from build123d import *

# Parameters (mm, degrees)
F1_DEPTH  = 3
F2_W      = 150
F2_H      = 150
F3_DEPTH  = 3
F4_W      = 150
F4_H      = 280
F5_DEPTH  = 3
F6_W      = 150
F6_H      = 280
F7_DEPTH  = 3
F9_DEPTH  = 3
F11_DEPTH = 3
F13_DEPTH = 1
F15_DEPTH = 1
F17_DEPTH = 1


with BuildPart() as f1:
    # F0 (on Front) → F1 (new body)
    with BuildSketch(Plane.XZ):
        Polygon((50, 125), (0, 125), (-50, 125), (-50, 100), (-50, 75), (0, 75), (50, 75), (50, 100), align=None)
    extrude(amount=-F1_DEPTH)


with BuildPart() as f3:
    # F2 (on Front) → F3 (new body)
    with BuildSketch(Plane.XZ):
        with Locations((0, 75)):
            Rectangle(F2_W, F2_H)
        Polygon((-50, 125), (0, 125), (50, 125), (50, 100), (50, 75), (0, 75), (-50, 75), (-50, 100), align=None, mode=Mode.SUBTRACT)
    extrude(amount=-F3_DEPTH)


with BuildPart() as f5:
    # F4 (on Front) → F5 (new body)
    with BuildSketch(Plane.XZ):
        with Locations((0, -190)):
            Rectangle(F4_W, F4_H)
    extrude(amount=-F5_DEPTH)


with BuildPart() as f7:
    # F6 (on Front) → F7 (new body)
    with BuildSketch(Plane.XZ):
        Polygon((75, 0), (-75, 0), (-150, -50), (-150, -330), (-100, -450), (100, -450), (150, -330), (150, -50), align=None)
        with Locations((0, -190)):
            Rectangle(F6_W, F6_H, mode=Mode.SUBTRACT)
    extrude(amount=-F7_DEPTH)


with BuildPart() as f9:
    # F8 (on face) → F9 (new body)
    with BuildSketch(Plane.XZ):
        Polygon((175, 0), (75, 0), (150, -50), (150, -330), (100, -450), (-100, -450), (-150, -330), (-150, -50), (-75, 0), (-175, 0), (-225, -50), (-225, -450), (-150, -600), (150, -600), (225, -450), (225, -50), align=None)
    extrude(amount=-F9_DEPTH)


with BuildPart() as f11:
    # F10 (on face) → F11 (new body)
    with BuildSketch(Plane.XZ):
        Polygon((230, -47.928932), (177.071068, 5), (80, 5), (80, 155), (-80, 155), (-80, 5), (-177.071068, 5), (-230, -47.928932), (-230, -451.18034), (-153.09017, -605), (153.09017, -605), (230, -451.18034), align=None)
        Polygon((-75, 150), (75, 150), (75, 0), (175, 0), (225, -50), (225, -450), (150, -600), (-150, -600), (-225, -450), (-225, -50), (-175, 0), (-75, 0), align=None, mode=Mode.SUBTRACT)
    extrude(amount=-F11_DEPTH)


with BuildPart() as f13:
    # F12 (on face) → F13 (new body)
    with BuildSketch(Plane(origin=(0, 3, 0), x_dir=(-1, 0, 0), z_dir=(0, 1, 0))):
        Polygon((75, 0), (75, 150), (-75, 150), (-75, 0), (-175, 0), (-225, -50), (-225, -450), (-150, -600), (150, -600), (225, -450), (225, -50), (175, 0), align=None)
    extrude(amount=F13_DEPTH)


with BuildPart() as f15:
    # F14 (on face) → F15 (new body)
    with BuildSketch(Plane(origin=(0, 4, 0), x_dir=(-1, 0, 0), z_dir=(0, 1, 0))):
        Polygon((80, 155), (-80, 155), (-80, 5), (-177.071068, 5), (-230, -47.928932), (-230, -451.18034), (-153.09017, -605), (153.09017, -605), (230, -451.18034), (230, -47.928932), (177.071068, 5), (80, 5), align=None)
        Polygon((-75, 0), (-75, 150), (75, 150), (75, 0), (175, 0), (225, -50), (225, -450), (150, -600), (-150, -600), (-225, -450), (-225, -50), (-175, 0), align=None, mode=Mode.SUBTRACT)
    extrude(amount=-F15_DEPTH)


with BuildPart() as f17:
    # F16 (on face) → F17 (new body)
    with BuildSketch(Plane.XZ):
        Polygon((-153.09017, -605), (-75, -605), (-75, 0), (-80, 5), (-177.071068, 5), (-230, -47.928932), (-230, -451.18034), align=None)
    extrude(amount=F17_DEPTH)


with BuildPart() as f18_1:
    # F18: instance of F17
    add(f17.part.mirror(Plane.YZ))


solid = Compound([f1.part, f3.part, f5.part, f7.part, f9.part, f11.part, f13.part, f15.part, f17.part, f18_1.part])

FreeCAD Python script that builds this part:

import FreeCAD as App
import Part
import Sketcher
from FreeCAD import Vector
Q = App.Units.Quantity

doc = App.newDocument("Part")
params = doc.addObject("Spreadsheet::Sheet", "Params")
for row, (alias, value) in enumerate([
    ("sketch1_width", "100 mm"),
    ("sketch1_height", "50 mm"),
    ("pad1_length", "3 mm"),
    ("sketch2_width", "150 mm"),
    ("sketch2_width2", "100 mm"),
    ("sketch2_height", "50 mm"),
    ("pad2_length", "3 mm"),
    ("sketch3_width", "150 mm"),
    ("sketch3_height", "280 mm"),
    ("pad3_length", "3 mm"),
    ("sketch4_width", "150 mm"),
    ("sketch4_width2", "200 mm"),
    ("sketch4_height", "280 mm"),
    ("sketch4_length", "130 mm"),
    ("pad4_length", "3 mm"),
    ("sketch5_width", "100 mm"),
    ("sketch5_width2", "200 mm"),
    ("sketch5_width3", "300 mm"),
    ("sketch5_height", "280 mm"),
    ("sketch5_height2", "400 mm"),
    ("pad5_length", "3 mm"),
    ("sketch6_width", "160 mm"),
    ("sketch6_width2", "150 mm"),
    ("sketch6_width3", "100 mm"),
    ("sketch6_width4", "300 mm"),
    ("sketch6_height", "400 mm"),
    ("pad6_length", "3 mm"),
    ("sketch7_width", "150 mm"),
    ("sketch7_width2", "100 mm"),
    ("sketch7_width3", "300 mm"),
    ("sketch7_height", "400 mm"),
    ("pad7_length", "1 mm"),
    ("sketch8_width", "160 mm"),
    ("sketch8_width2", "100 mm"),
    ("sketch8_width3", "150 mm"),
    ("sketch8_width4", "300 mm"),
    ("sketch8_height", "400 mm"),
    ("pad8_length", "1 mm"),
    ("sketch9_height", "605 mm"),
    ("pad9_length", "1 mm"),
], start=1):
    params.set(f"A{row}", alias)
    params.set(f"B{row}", "=" + value)
    params.setAlias(f"B{row}", alias)

body = doc.addObject("PartDesign::Body", "Body")

# Sketch on XZ plane
sketch1 = doc.addObject("Sketcher::SketchObject", "Sketch")
body.addObject(sketch1)
sketch1.AttachmentSupport = (doc.XZ_Plane, [""])
sketch1.MapMode = "FlatFace"
sketch1.addGeometry([
    Part.LineSegment(Vector(50, 125, 0), Vector(-50, 125, 0)),
    Part.LineSegment(Vector(-50, 125, 0), Vector(-50, 75, 0)),
    Part.LineSegment(Vector(-50, 75, 0), Vector(50, 75, 0)),
    Part.LineSegment(Vector(50, 75, 0), Vector(50, 125, 0)),
], False)
sketch1.addConstraint([
    Sketcher.Constraint("Coincident", 0, 2, 1, 1),
    Sketcher.Constraint("Coincident", 1, 2, 2, 1),
    Sketcher.Constraint("Coincident", 2, 2, 3, 1),
    Sketcher.Constraint("Coincident", 3, 2, 0, 1),
    Sketcher.Constraint("Horizontal", 0),
    Sketcher.Constraint("Vertical", 1),
    Sketcher.Constraint("Horizontal", 2),
    Sketcher.Constraint("Vertical", 3),
    Sketcher.Constraint("DistanceX", 0, 2, 0, 1, 100.0),
    Sketcher.Constraint("DistanceY", 1, 2, 1, 1, 50.0),
    Sketcher.Constraint("DistanceX", 0, 2, -1, 1, 50.0),
    Sketcher.Constraint("DistanceY", -1, 1, 0, 2, 125.0),
])
sketch1.setExpression("Constraints[8]", "Params.sketch1_width")
sketch1.setExpression("Constraints[9]", "Params.sketch1_height")
pad1 = doc.addObject("PartDesign::Pad", "Pad")
body.addObject(pad1)
pad1.Profile = sketch1
pad1.setExpression("Length", "Params.pad1_length")
pad1.Reversed = True
body2 = doc.addObject("PartDesign::Body", "Body001")

# Sketch on XZ plane
sketch2 = doc.addObject("Sketcher::SketchObject", "Sketch001")
body2.addObject(sketch2)
sketch2.AttachmentSupport = (doc.getObject("XZ_Plane001"), [""])
sketch2.MapMode = "FlatFace"
sketch2.addGeometry([
    Part.LineSegment(Vector(-75, 150, 0), Vector(-75, 0, 0)),  # 0
    Part.LineSegment(Vector(-75, 0, 0), Vector(75, 0, 0)),  # 1
    Part.LineSegment(Vector(75, 0, 0), Vector(75, 150, 0)),  # 2
    Part.LineSegment(Vector(75, 150, 0), Vector(-75, 150, 0)),  # 3
    Part.LineSegment(Vector(-50, 75, 0), Vector(-50, 125, 0)),  # 4
    Part.LineSegment(Vector(-50, 125, 0), Vector(50, 125, 0)),  # 5
    Part.LineSegment(Vector(50, 125, 0), Vector(50, 75, 0)),  # 6
    Part.LineSegment(Vector(50, 75, 0), Vector(-50, 75, 0)),  # 7
], False)
sketch2.addConstraint([
    Sketcher.Constraint("Coincident", 0, 2, 1, 1),
    Sketcher.Constraint("Coincident", 1, 2, 2, 1),
    Sketcher.Constraint("Coincident", 2, 2, 3, 1),
    Sketcher.Constraint("Coincident", 3, 2, 0, 1),
    Sketcher.Constraint("Coincident", 4, 2, 5, 1),
    Sketcher.Constraint("Coincident", 5, 2, 6, 1),
    Sketcher.Constraint("Coincident", 6, 2, 7, 1),
    Sketcher.Constraint("Coincident", 7, 2, 4, 1),
    Sketcher.Constraint("Vertical", 0),
    Sketcher.Constraint("Horizontal", 1),
    Sketcher.Constraint("Vertical", 2),
    Sketcher.Constraint("Horizontal", 3),
    Sketcher.Constraint("Vertical", 4),
    Sketcher.Constraint("Horizontal", 5),
    Sketcher.Constraint("Vertical", 6),
    Sketcher.Constraint("Horizontal", 7),
    Sketcher.Constraint("Symmetric", 0, 2, 1, 2, -1, 1),
    Sketcher.Constraint("Equal", 3, 0),
    Sketcher.Constraint("DistanceX", 1, 1, 1, 2, 150.0),
    Sketcher.Constraint("DistanceX", 5, 1, 5, 2, 100.0),
    Sketcher.Constraint("DistanceY", 4, 1, 4, 2, 50.0),
    Sketcher.Constraint("DistanceX", 4, 2, -1, 1, 50.0),
    Sketcher.Constraint("DistanceY", -1, 1, 4, 2, 125.0),
])
sketch2.setExpression("Constraints[18]", "Params.sketch2_width")
sketch2.setExpression("Constraints[19]", "Params.sketch2_width2")
sketch2.setExpression("Constraints[20]", "Params.sketch2_height")
pad2 = doc.addObject("PartDesign::Pad", "Pad001")
body2.addObject(pad2)
pad2.Profile = sketch2
pad2.setExpression("Length", "Params.pad2_length")
pad2.Reversed = True
body3 = doc.addObject("PartDesign::Body", "Body002")

# Sketch on XZ plane
sketch3 = doc.addObject("Sketcher::SketchObject", "Sketch002")
body3.addObject(sketch3)
sketch3.AttachmentSupport = (doc.getObject("XZ_Plane002"), [""])
sketch3.MapMode = "FlatFace"
sketch3.addGeometry([
    Part.LineSegment(Vector(-75, -50, 0), Vector(-75, -330, 0)),
    Part.LineSegment(Vector(-75, -330, 0), Vector(75, -330, 0)),
    Part.LineSegment(Vector(75, -330, 0), Vector(75, -50, 0)),
    Part.LineSegment(Vector(75, -50, 0), Vector(-75, -50, 0)),
], False)
sketch3.addConstraint([
    Sketcher.Constraint("Coincident", 0, 2, 1, 1),
    Sketcher.Constraint("Coincident", 1, 2, 2, 1),
    Sketcher.Constraint("Coincident", 2, 2, 3, 1),
    Sketcher.Constraint("Coincident", 3, 2, 0, 1),
    Sketcher.Constraint("Vertical", 0),
    Sketcher.Constraint("Horizontal", 1),
    Sketcher.Constraint("Vertical", 2),
    Sketcher.Constraint("Horizontal", 3),
    Sketcher.Constraint("DistanceX", 1, 1, 1, 2, 150.0),
    Sketcher.Constraint("DistanceY", 0, 2, 0, 1, 280.0),
    Sketcher.Constraint("DistanceX", 0, 2, -1, 1, 75.0),
    Sketcher.Constraint("DistanceY", 0, 2, -1, 1, 330.0),
])
sketch3.setExpression("Constraints[8]", "Params.sketch3_width")
sketch3.setExpression("Constraints[9]", "Params.sketch3_height")
pad3 = doc.addObject("PartDesign::Pad", "Pad002")
body3.addObject(pad3)
pad3.Profile = sketch3
pad3.setExpression("Length", "Params.pad3_length")
pad3.Reversed = True
body4 = doc.addObject("PartDesign::Body", "Body003")

# Sketch on XZ plane
sketch4 = doc.addObject("Sketcher::SketchObject", "Sketch003")
body4.addObject(sketch4)
sketch4.AttachmentSupport = (doc.getObject("XZ_Plane003"), [""])
sketch4.MapMode = "FlatFace"
sketch4.addGeometry([
    Part.LineSegment(Vector(75, 0, 0), Vector(-75, 0, 0)),  # 0
    Part.LineSegment(Vector(-75, 0, 0), Vector(-150, -50, 0)),  # 1
    Part.LineSegment(Vector(-150, -50, 0), Vector(-150, -330, 0)),  # 2
    Part.LineSegment(Vector(-150, -330, 0), Vector(-100, -450, 0)),  # 3
    Part.LineSegment(Vector(-100, -450, 0), Vector(100, -450, 0)),  # 4
    Part.LineSegment(Vector(100, -450, 0), Vector(150, -330, 0)),  # 5
    Part.LineSegment(Vector(150, -330, 0), Vector(150, -50, 0)),  # 6
    Part.LineSegment(Vector(150, -50, 0), Vector(75, 0, 0)),  # 7
    Part.LineSegment(Vector(75, -330, 0), Vector(-75, -330, 0)),  # 8
    Part.LineSegment(Vector(-75, -330, 0), Vector(-75, -50, 0)),  # 9
    Part.LineSegment(Vector(-75, -50, 0), Vector(75, -50, 0)),  # 10
    Part.LineSegment(Vector(75, -50, 0), Vector(75, -330, 0)),  # 11
], False)
sketch4.addConstraint([
    Sketcher.Constraint("Coincident", 0, 2, 1, 1),
    Sketcher.Constraint("Coincident", 1, 2, 2, 1),
    Sketcher.Constraint("Coincident", 2, 2, 3, 1),
    Sketcher.Constraint("Coincident", 3, 2, 4, 1),
    Sketcher.Constraint("Coincident", 4, 2, 5, 1),
    Sketcher.Constraint("Coincident", 5, 2, 6, 1),
    Sketcher.Constraint("Coincident", 6, 2, 7, 1),
    Sketcher.Constraint("Coincident", 7, 2, 0, 1),
    Sketcher.Constraint("Coincident", 8, 2, 9, 1),
    Sketcher.Constraint("Coincident", 9, 2, 10, 1),
    Sketcher.Constraint("Coincident", 10, 2, 11, 1),
    Sketcher.Constraint("Coincident", 11, 2, 8, 1),
    Sketcher.Constraint("Horizontal", 0),
    Sketcher.Constraint("Vertical", 2),
    Sketcher.Constraint("Horizontal", 4),
    Sketcher.Constraint("Vertical", 6),
    Sketcher.Constraint("Horizontal", 8),
    Sketcher.Constraint("Vertical", 9),
    Sketcher.Constraint("Horizontal", 10),
    Sketcher.Constraint("Vertical", 11),
    Sketcher.Constraint("Symmetric", 0, 2, 7, 2, -1, 1),
    Sketcher.Constraint("Symmetric", 2, 2, 5, 2, -2),
    Sketcher.Constraint("Horizontal", 1, 2, 6, 2),
    Sketcher.Constraint("Horizontal", 5, 2, 8, 2),
    Sketcher.Constraint("Horizontal", 6, 2, 9, 2),
    Sketcher.Constraint("Vertical", 0, 2, 8, 2),
    Sketcher.Constraint("Vertical", 7, 2, 10, 2),
    Sketcher.Constraint("Equal", 3, 5),
    Sketcher.Constraint("DistanceX", 0, 2, 0, 1, 150.0),
    Sketcher.Constraint("DistanceX", 4, 1, 4, 2, 200.0),
    Sketcher.Constraint("DistanceY", 2, 2, 2, 1, 280.0),
    Sketcher.Constraint("Distance", 3, 130.0),
    Sketcher.Constraint("DistanceX", 1, 2, -1, 1, 150.0),
    Sketcher.Constraint("DistanceY", 1, 2, -1, 1, 50.0),
])
sketch4.setExpression("Constraints[28]", "Params.sketch4_width")
sketch4.setExpression("Constraints[29]", "Params.sketch4_width2")
sketch4.setExpression("Constraints[30]", "Params.sketch4_height")
sketch4.setExpression("Constraints[31]", "Params.sketch4_length")
pad4 = doc.addObject("PartDesign::Pad", "Pad003")
body4.addObject(pad4)
pad4.Profile = sketch4
pad4.setExpression("Length", "Params.pad4_length")
pad4.Reversed = True
body5 = doc.addObject("PartDesign::Body", "Body004")

# Sketch on XZ plane
sketch5 = doc.addObject("Sketcher::SketchObject", "Sketch004")
body5.addObject(sketch5)
sketch5.AttachmentSupport = (doc.getObject("XZ_Plane004"), [""])
sketch5.MapMode = "FlatFace"
sketch5.addGeometry([
    Part.LineSegment(Vector(175, 0, 0), Vector(75, 0, 0)),  # 0
    Part.LineSegment(Vector(75, 0, 0), Vector(150, -50, 0)),  # 1
    Part.LineSegment(Vector(150, -50, 0), Vector(150, -330, 0)),  # 2
    Part.LineSegment(Vector(150, -330, 0), Vector(100, -450, 0)),  # 3
    Part.LineSegment(Vector(100, -450, 0), Vector(-100, -450, 0)),  # 4
    Part.LineSegment(Vector(-100, -450, 0), Vector(-150, -330, 0)),  # 5
    Part.LineSegment(Vector(-150, -330, 0), Vector(-150, -50, 0)),  # 6
    Part.LineSegment(Vector(-150, -50, 0), Vector(-75, 0, 0)),  # 7
    Part.LineSegment(Vector(-75, 0, 0), Vector(-175, 0, 0)),  # 8
    Part.LineSegment(Vector(-175, 0, 0), Vector(-225, -50, 0)),  # 9
    Part.LineSegment(Vector(-225, -50, 0), Vector(-225, -450, 0)),  # 10
    Part.LineSegment(Vector(-225, -450, 0), Vector(-150, -600, 0)),  # 11
    Part.LineSegment(Vector(-150, -600, 0), Vector(150, -600, 0)),  # 12
    Part.LineSegment(Vector(150, -600, 0), Vector(225, -450, 0)),  # 13
    Part.LineSegment(Vector(225, -450, 0), Vector(225, -50, 0)),  # 14
    Part.LineSegment(Vector(225, -50, 0), Vector(175, 0, 0)),  # 15
], False)
sketch5.addConstraint([
    Sketcher.Constraint("Coincident", 0, 2, 1, 1),
    Sketcher.Constraint("Coincident", 1, 2, 2, 1),
    Sketcher.Constraint("Coincident", 2, 2, 3, 1),
    Sketcher.Constraint("Coincident", 3, 2, 4, 1),
    Sketcher.Constraint("Coincident", 4, 2, 5, 1),
    Sketcher.Constraint("Coincident", 5, 2, 6, 1),
    Sketcher.Constraint("Coincident", 6, 2, 7, 1),
    Sketcher.Constraint("Coincident", 7, 2, 8, 1),
    Sketcher.Constraint("Coincident", 8, 2, 9, 1),
    Sketcher.Constraint("Coincident", 9, 2, 10, 1),
    Sketcher.Constraint("Coincident", 10, 2, 11, 1),
    Sketcher.Constraint("Coincident", 11, 2, 12, 1),
    Sketcher.Constraint("Coincident", 12, 2, 13, 1),
    Sketcher.Constraint("Coincident", 13, 2, 14, 1),
    Sketcher.Constraint("Coincident", 14, 2, 15, 1),
    Sketcher.Constraint("Coincident", 15, 2, 0, 1),
    Sketcher.Constraint("Horizontal", 0),
    Sketcher.Constraint("Vertical", 2),
    Sketcher.Constraint("Horizontal", 4),
    Sketcher.Constraint("Vertical", 6),
    Sketcher.Constraint("Horizontal", 8),
    Sketcher.Constraint("Vertical", 10),
    Sketcher.Constraint("Horizontal", 12),
    Sketcher.Constraint("Vertical", 14),
    Sketcher.Constraint("Symmetric", 0, 2, 7, 2, -1, 1),
    Sketcher.Constraint("Symmetric", 2, 2, 5, 2, -2),
    Sketcher.Constraint("Symmetric", 10, 2, 13, 2, -2),
    Sketcher.Constraint("Symmetric", 8, 2, 15, 2, -2),
    Sketcher.Constraint("Perpendicular", 9, 15),
    Sketcher.Constraint("Horizontal", 1, 2, 6, 2),
    Sketcher.Constraint("Horizontal", 6, 2, 9, 2),
    Sketcher.Constraint("Horizontal", 4, 2, 10, 2),
    Sketcher.Constraint("Horizontal", 9, 2, 14, 2),
    Sketcher.Constraint("Vertical", 6, 2, 11, 2),
    Sketcher.Constraint("Vertical", 2, 2, 12, 2),
    Sketcher.Constraint("Equal", 3, 5),
    Sketcher.Constraint("DistanceX", 0, 2, 0, 1, 100.0),
    Sketcher.Constraint("DistanceX", 4, 2, 4, 1, 200.0),
    Sketcher.Constraint("DistanceX", 12, 1, 12, 2, 300.0),
    Sketcher.Constraint("DistanceY", 2, 2, 2, 1, 280.0),
    Sketcher.Constraint("DistanceY", 10, 2, 10, 1, 400.0),
    Sketcher.Constraint("DistanceX", -1, 1, 0, 2, 75.0),
    Sketcher.Constraint("DistanceY", 1, 2, -1, 1, 50.0),
    Sketcher.Constraint("DistanceY", 11, 2, -1, 1, 600.0),
])
sketch5.setExpression("Constraints[36]", "Params.sketch5_width")
sketch5.setExpression("Constraints[37]", "Params.sketch5_width2")
sketch5.setExpression("Constraints[38]", "Params.sketch5_width3")
sketch5.setExpression("Constraints[39]", "Params.sketch5_height")
sketch5.setExpression("Constraints[40]", "Params.sketch5_height2")
pad5 = doc.addObject("PartDesign::Pad", "Pad004")
body5.addObject(pad5)
pad5.Profile = sketch5
pad5.setExpression("Length", "Params.pad5_length")
pad5.Reversed = True
body6 = doc.addObject("PartDesign::Body", "Body005")

# Sketch on XZ plane
sketch6 = doc.addObject("Sketcher::SketchObject", "Sketch005")
body6.addObject(sketch6)
sketch6.AttachmentSupport = (doc.getObject("XZ_Plane005"), [""])
sketch6.MapMode = "FlatFace"
sketch6.addGeometry([
    Part.LineSegment(Vector(230, -48, 0), Vector(177, 5, 0)),  # 0
    Part.LineSegment(Vector(177, 5, 0), Vector(80, 5, 0)),  # 1
    Part.LineSegment(Vector(80, 5, 0), Vector(80, 155, 0)),  # 2
    Part.LineSegment(Vector(80, 155, 0), Vector(-80, 155, 0)),  # 3
    Part.LineSegment(Vector(-80, 155, 0), Vector(-80, 5, 0)),  # 4
    Part.LineSegment(Vector(-80, 5, 0), Vector(-177, 5, 0)),  # 5
    Part.LineSegment(Vector(-177, 5, 0), Vector(-230, -48, 0)),  # 6
    Part.LineSegment(Vector(-230, -48, 0), Vector(-230, -451, 0)),  # 7
    Part.LineSegment(Vector(-230, -451, 0), Vector(-153, -605, 0)),  # 8
    Part.LineSegment(Vector(-153, -605, 0), Vector(153, -605, 0)),  # 9
    Part.LineSegment(Vector(153, -605, 0), Vector(230, -451, 0)),  # 10
    Part.LineSegment(Vector(230, -451, 0), Vector(230, -48, 0)),  # 11
    Part.LineSegment(Vector(-75, 0, 0), Vector(-75, 150, 0)),  # 12
    Part.LineSegment(Vector(-75, 150, 0), Vector(75, 150, 0)),  # 13
    Part.LineSegment(Vector(75, 150, 0), Vector(75, 0, 0)),  # 14
    Part.LineSegment(Vector(75, 0, 0), Vector(175, 0, 0)),  # 15
    Part.LineSegment(Vector(175, 0, 0), Vector(225, -50, 0)),  # 16
    Part.LineSegment(Vector(225, -50, 0), Vector(225, -450, 0)),  # 17
    Part.LineSegment(Vector(225, -450, 0), Vector(150, -600, 0)),  # 18
    Part.LineSegment(Vector(150, -600, 0), Vector(-150, -600, 0)),  # 19
    Part.LineSegment(Vector(-150, -600, 0), Vector(-225, -450, 0)),  # 20
    Part.LineSegment(Vector(-225, -450, 0), Vector(-225, -50, 0)),  # 21
    Part.LineSegment(Vector(-225, -50, 0), Vector(-175, 0, 0)),  # 22
    Part.LineSegment(Vector(-175, 0, 0), Vector(-75, 0, 0)),  # 23
], False)
sketch6.addConstraint([
    Sketcher.Constraint("Coincident", 0, 2, 1, 1),
    Sketcher.Constraint("Coincident", 1, 2, 2, 1),
    Sketcher.Constraint("Coincident", 2, 2, 3, 1),
    Sketcher.Constraint("Coincident", 3, 2, 4, 1),
    Sketcher.Constraint("Coincident", 4, 2, 5, 1),
    Sketcher.Constraint("Coincident", 5, 2, 6, 1),
    Sketcher.Constraint("Coincident", 6, 2, 7, 1),
    Sketcher.Constraint("Coincident", 7, 2, 8, 1),
    Sketcher.Constraint("Coincident", 8, 2, 9, 1),
    Sketcher.Constraint("Coincident", 9, 2, 10, 1),
    Sketcher.Constraint("Coincident", 10, 2, 11, 1),
    Sketcher.Constraint("Coincident", 11, 2, 0, 1),
    Sketcher.Constraint("Coincident", 12, 2, 13, 1),
    Sketcher.Constraint("Coincident", 13, 2, 14, 1),
    Sketcher.Constraint("Coincident", 14, 2, 15, 1),
    Sketcher.Constraint("Coincident", 15, 2, 16, 1),
    Sketcher.Constraint("Coincident", 16, 2, 17, 1),
    Sketcher.Constraint("Coincident", 17, 2, 18, 1),
    Sketcher.Constraint("Coincident", 18, 2, 19, 1),
    Sketcher.Constraint("Coincident", 19, 2, 20, 1),
    Sketcher.Constraint("Coincident", 20, 2, 21, 1),
    Sketcher.Constraint("Coincident", 21, 2, 22, 1),
    Sketcher.Constraint("Coincident", 22, 2, 23, 1),
    Sketcher.Constraint("Coincident", 23, 2, 12, 1),
    Sketcher.Constraint("Horizontal", 1),
    Sketcher.Constraint("Vertical", 2),
    Sketcher.Constraint("Horizontal", 3),
    Sketcher.Constraint("Vertical", 4),
    Sketcher.Constraint("Horizontal", 5),
    Sketcher.Constraint("Vertical", 7),
    Sketcher.Constraint("Horizontal", 9),
    Sketcher.Constraint("Vertical", 11),
    Sketcher.Constraint("Vertical", 12),
    Sketcher.Constraint("Horizontal", 13),
    Sketcher.Constraint("Vertical", 14),
    Sketcher.Constraint("Horizontal", 15),
    Sketcher.Constraint("Vertical", 17),
    Sketcher.Constraint("Horizontal", 19),
    Sketcher.Constraint("Vertical", 21),
    Sketcher.Constraint("Horizontal", 23),
    Sketcher.Constraint("Symmetric", 15, 2, 22, 2, -1, 1),
    Sketcher.Constraint("Symmetric", 1, 2, 4, 2, -2),
    Sketcher.Constraint("Symmetric", 7, 2, 10, 2, -2),
    Sketcher.Constraint("Symmetric", 17, 2, 20, 2, -2),
    Sketcher.Constraint("Symmetric", 14, 2, 23, 2, -2),
    Sketcher.Constraint("Perpendicular", 0, 6),
    Sketcher.Constraint("Perpendicular", 6, 16),
    Sketcher.Constraint("Parallel", 10, 18),
    Sketcher.Constraint("Parallel", 8, 20),
    Sketcher.Constraint("Perpendicular", 16, 22),
    Sketcher.Constraint("Horizontal", 6, 2, 11, 2),
    Sketcher.Constraint("Horizontal", 16, 2, 21, 2),
    Sketcher.Constraint("Equal", 13, 2),
    Sketcher.Constraint("Equal", 4, 12),
    Sketcher.Constraint("Equal", 8, 10),
    Sketcher.Constraint("DistanceX", 3, 2, 3, 1, 160.0),
    Sketcher.Constraint("DistanceX", 13, 1, 13, 2, 150.0),
    Sketcher.Constraint("DistanceX", 15, 1, 15, 2, 100.0),
    Sketcher.Constraint("DistanceX", 19, 2, 19, 1, 300.0),
    Sketcher.Constraint("DistanceY", 17, 2, 17, 1, 400.0),
    Sketcher.Constraint("DistanceY", -1, 1, 0, 2, 5.0),
    Sketcher.Constraint("DistanceX", 6, 2, -1, 1, 230.0),
    Sketcher.Constraint("DistanceY", 8, 2, -1, 1, 605.0),
    Sketcher.Constraint("DistanceX", -1, 1, 16, 2, 225.0),
    Sketcher.Constraint("DistanceY", 18, 2, -1, 1, 600.0),
    Sketcher.Constraint("DistanceX", 9, 1, 9, 2, 306.18034),
    Sketcher.Constraint("DistanceX", 1, 2, 1, 1, 97.071068),
])
sketch6.setExpression("Constraints[55]", "Params.sketch6_width")
sketch6.setExpression("Constraints[56]", "Params.sketch6_width2")
sketch6.setExpression("Constraints[57]", "Params.sketch6_width3")
sketch6.setExpression("Constraints[58]", "Params.sketch6_width4")
sketch6.setExpression("Constraints[59]", "Params.sketch6_height")
pad6 = doc.addObject("PartDesign::Pad", "Pad005")
body6.addObject(pad6)
pad6.Profile = sketch6
pad6.setExpression("Length", "Params.pad6_length")
pad6.Reversed = True
body7 = doc.addObject("PartDesign::Body", "Body006")

# Sketch on XZ plane
sketch7 = doc.addObject("Sketcher::SketchObject", "Sketch006")
body7.addObject(sketch7)
sketch7.AttachmentSupport = (doc.getObject("XZ_Plane006"), [""])
sketch7.MapMode = "FlatFace"
sketch7.AttachmentOffset = App.Placement(Vector(0, 0, -3), App.Rotation())
sketch7.addGeometry([
    Part.LineSegment(Vector(-75, 0, 0), Vector(-75, 150, 0)),  # 0
    Part.LineSegment(Vector(-75, 150, 0), Vector(75, 150, 0)),  # 1
    Part.LineSegment(Vector(75, 150, 0), Vector(75, 0, 0)),  # 2
    Part.LineSegment(Vector(75, 0, 0), Vector(175, 0, 0)),  # 3
    Part.LineSegment(Vector(175, 0, 0), Vector(225, -50, 0)),  # 4
    Part.LineSegment(Vector(225, -50, 0), Vector(225, -450, 0)),  # 5
    Part.LineSegment(Vector(225, -450, 0), Vector(150, -600, 0)),  # 6
    Part.LineSegment(Vector(150, -600, 0), Vector(-150, -600, 0)),  # 7
    Part.LineSegment(Vector(-150, -600, 0), Vector(-225, -450, 0)),  # 8
    Part.LineSegment(Vector(-225, -450, 0), Vector(-225, -50, 0)),  # 9
    Part.LineSegment(Vector(-225, -50, 0), Vector(-175, 0, 0)),  # 10
    Part.LineSegment(Vector(-175, 0, 0), Vector(-75, 0, 0)),  # 11
], False)
sketch7.addConstraint([
    Sketcher.Constraint("Coincident", 0, 2, 1, 1),
    Sketcher.Constraint("Coincident", 1, 2, 2, 1),
    Sketcher.Constraint("Coincident", 2, 2, 3, 1),
    Sketcher.Constraint("Coincident", 3, 2, 4, 1),
    Sketcher.Constraint("Coincident", 4, 2, 5, 1),
    Sketcher.Constraint("Coincident", 5, 2, 6, 1),
    Sketcher.Constraint("Coincident", 6, 2, 7, 1),
    Sketcher.Constraint("Coincident", 7, 2, 8, 1),
    Sketcher.Constraint("Coincident", 8, 2, 9, 1),
    Sketcher.Constraint("Coincident", 9, 2, 10, 1),
    Sketcher.Constraint("Coincident", 10, 2, 11, 1),
    Sketcher.Constraint("Coincident", 11, 2, 0, 1),
    Sketcher.Constraint("Vertical", 0),
    Sketcher.Constraint("Horizontal", 1),
    Sketcher.Constraint("Vertical", 2),
    Sketcher.Constraint("Horizontal", 3),
    Sketcher.Constraint("Vertical", 5),
    Sketcher.Constraint("Horizontal", 7),
    Sketcher.Constraint("Vertical", 9),
    Sketcher.Constraint("Horizontal", 11),
    Sketcher.Constraint("Symmetric", 3, 2, 10, 2, -1, 1),
    Sketcher.Constraint("Symmetric", 5, 2, 8, 2, -2),
    Sketcher.Constraint("Symmetric", 2, 2, 11, 2, -2),
    Sketcher.Constraint("Perpendicular", 4, 10),
    Sketcher.Constraint("Horizontal", 4, 2, 9, 2),
    Sketcher.Constraint("Equal", 1, 0),
    Sketcher.Constraint("Equal", 6, 8),
    Sketcher.Constraint("DistanceX", 1, 1, 1, 2, 150.0),
    Sketcher.Constraint("DistanceX", 3, 1, 3, 2, 100.0),
    Sketcher.Constraint("DistanceX", 7, 2, 7, 1, 300.0),
    Sketcher.Constraint("DistanceY", 5, 2, 5, 1, 400.0),
    Sketcher.Constraint("DistanceX", -1, 1, 4, 2, 225.0),
    Sketcher.Constraint("DistanceY", 6, 2, -1, 1, 600.0),
])
sketch7.setExpression("Constraints[27]", "Params.sketch7_width")
sketch7.setExpression("Constraints[28]", "Params.sketch7_width2")
sketch7.setExpression("Constraints[29]", "Params.sketch7_width3")
sketch7.setExpression("Constraints[30]", "Params.sketch7_height")
pad7 = doc.addObject("PartDesign::Pad", "Pad006")
body7.addObject(pad7)
pad7.Profile = sketch7
pad7.setExpression("Length", "Params.pad7_length")
pad7.Reversed = True
body8 = doc.addObject("PartDesign::Body", "Body007")

# Sketch on XZ plane
sketch8 = doc.addObject("Sketcher::SketchObject", "Sketch007")
body8.addObject(sketch8)
sketch8.AttachmentSupport = (doc.getObject("XZ_Plane007"), [""])
sketch8.MapMode = "FlatFace"
sketch8.AttachmentOffset = App.Placement(Vector(0, 0, -4), App.Rotation())
sketch8.addGeometry([
    Part.LineSegment(Vector(-80, 155, 0), Vector(80, 155, 0)),  # 0
    Part.LineSegment(Vector(80, 155, 0), Vector(80, 5, 0)),  # 1
    Part.LineSegment(Vector(80, 5, 0), Vector(177, 5, 0)),  # 2
    Part.LineSegment(Vector(177, 5, 0), Vector(230, -48, 0)),  # 3
    Part.LineSegment(Vector(230, -48, 0), Vector(230, -451, 0)),  # 4
    Part.LineSegment(Vector(230, -451, 0), Vector(153, -605, 0)),  # 5
    Part.LineSegment(Vector(153, -605, 0), Vector(-153, -605, 0)),  # 6
    Part.LineSegment(Vector(-153, -605, 0), Vector(-230, -451, 0)),  # 7
    Part.LineSegment(Vector(-230, -451, 0), Vector(-230, -48, 0)),  # 8
    Part.LineSegment(Vector(-230, -48, 0), Vector(-177, 5, 0)),  # 9
    Part.LineSegment(Vector(-177, 5, 0), Vector(-80, 5, 0)),  # 10
    Part.LineSegment(Vector(-80, 5, 0), Vector(-80, 155, 0)),  # 11
    Part.LineSegment(Vector(175, 0, 0), Vector(75, 0, 0)),  # 12
    Part.LineSegment(Vector(75, 0, 0), Vector(75, 150, 0)),  # 13
    Part.LineSegment(Vector(75, 150, 0), Vector(-75, 150, 0)),  # 14
    Part.LineSegment(Vector(-75, 150, 0), Vector(-75, 0, 0)),  # 15
    Part.LineSegment(Vector(-75, 0, 0), Vector(-175, 0, 0)),  # 16
    Part.LineSegment(Vector(-175, 0, 0), Vector(-225, -50, 0)),  # 17
    Part.LineSegment(Vector(-225, -50, 0), Vector(-225, -450, 0)),  # 18
    Part.LineSegment(Vector(-225, -450, 0), Vector(-150, -600, 0)),  # 19
    Part.LineSegment(Vector(-150, -600, 0), Vector(150, -600, 0)),  # 20
    Part.LineSegment(Vector(150, -600, 0), Vector(225, -450, 0)),  # 21
    Part.LineSegment(Vector(225, -450, 0), Vector(225, -50, 0)),  # 22
    Part.LineSegment(Vector(225, -50, 0), Vector(175, 0, 0)),  # 23
], False)
sketch8.addConstraint([
    Sketcher.Constraint("Coincident", 0, 2, 1, 1),
    Sketcher.Constraint("Coincident", 1, 2, 2, 1),
    Sketcher.Constraint("Coincident", 2, 2, 3, 1),
    Sketcher.Constraint("Coincident", 3, 2, 4, 1),
    Sketcher.Constraint("Coincident", 4, 2, 5, 1),
    Sketcher.Constraint("Coincident", 5, 2, 6, 1),
    Sketcher.Constraint("Coincident", 6, 2, 7, 1),
    Sketcher.Constraint("Coincident", 7, 2, 8, 1),
    Sketcher.Constraint("Coincident", 8, 2, 9, 1),
    Sketcher.Constraint("Coincident", 9, 2, 10, 1),
    Sketcher.Constraint("Coincident", 10, 2, 11, 1),
    Sketcher.Constraint("Coincident", 11, 2, 0, 1),
    Sketcher.Constraint("Coincident", 12, 2, 13, 1),
    Sketcher.Constraint("Coincident", 13, 2, 14, 1),
    Sketcher.Constraint("Coincident", 14, 2, 15, 1),
    Sketcher.Constraint("Coincident", 15, 2, 16, 1),
    Sketcher.Constraint("Coincident", 16, 2, 17, 1),
    Sketcher.Constraint("Coincident", 17, 2, 18, 1),
    Sketcher.Constraint("Coincident", 18, 2, 19, 1),
    Sketcher.Constraint("Coincident", 19, 2, 20, 1),
    Sketcher.Constraint("Coincident", 20, 2, 21, 1),
    Sketcher.Constraint("Coincident", 21, 2, 22, 1),
    Sketcher.Constraint("Coincident", 22, 2, 23, 1),
    Sketcher.Constraint("Coincident", 23, 2, 12, 1),
    Sketcher.Constraint("Horizontal", 0),
    Sketcher.Constraint("Vertical", 1),
    Sketcher.Constraint("Horizontal", 2),
    Sketcher.Constraint("Vertical", 4),
    Sketcher.Constraint("Horizontal", 6),
    Sketcher.Constraint("Vertical", 8),
    Sketcher.Constraint("Horizontal", 10),
    Sketcher.Constraint("Vertical", 11),
    Sketcher.Constraint("Horizontal", 12),
    Sketcher.Constraint("Vertical", 13),
    Sketcher.Constraint("Horizontal", 14),
    Sketcher.Constraint("Vertical", 15),
    Sketcher.Constraint("Horizontal", 16),
    Sketcher.Constraint("Vertical", 18),
    Sketcher.Constraint("Horizontal", 20),
    Sketcher.Constraint("Vertical", 22),
    Sketcher.Constraint("Symmetric", 12, 2, 15, 2, -1, 1),
    Sketcher.Constraint("Symmetric", 4, 2, 7, 2, -2),
    Sketcher.Constraint("Symmetric", 2, 2, 9, 2, -2),
    Sketcher.Constraint("Symmetric", 18, 2, 21, 2, -2),
    Sketcher.Constraint("Symmetric", 16, 2, 23, 2, -2),
    Sketcher.Constraint("Perpendicular", 3, 9),
    Sketcher.Constraint("Parallel", 9, 17),
    Sketcher.Constraint("Parallel", 7, 19),
    Sketcher.Constraint("Parallel", 5, 21),
    Sketcher.Constraint("Perpendicular", 17, 23),
    Sketcher.Constraint("Horizontal", 3, 2, 8, 2),
    Sketcher.Constraint("Equal", 2, 10),
    Sketcher.Constraint("Equal", 14, 1),
    Sketcher.Constraint("Equal", 11, 13),
    Sketcher.Constraint("Equal", 5, 7),
    Sketcher.Constraint("DistanceX", 0, 1, 0, 2, 160.0),
    Sketcher.Constraint("DistanceX", 12, 2, 12, 1, 100.0),
    Sketcher.Constraint("DistanceX", 14, 2, 14, 1, 150.0),
    Sketcher.Constraint("DistanceX", 20, 1, 20, 2, 300.0),
    Sketcher.Constraint("DistanceY", 18, 2, 18, 1, 400.0),
    Sketcher.Constraint("DistanceY", -1, 1, 0, 2, 155.0),
    Sketcher.Constraint("DistanceX", -1, 1, 3, 2, 230.0),
    Sketcher.Constraint("DistanceY", 5, 2, -1, 1, 605.0),
    Sketcher.Constraint("DistanceX", 17, 2, -1, 1, 225.0),
    Sketcher.Constraint("DistanceY", 19, 2, -1, 1, 600.0),
    Sketcher.Constraint("DistanceX", 6, 2, 6, 1, 306.18034),
    Sketcher.Constraint("DistanceX", 2, 1, 2, 2, 97.071068),
])
sketch8.setExpression("Constraints[55]", "Params.sketch8_width")
sketch8.setExpression("Constraints[56]", "Params.sketch8_width2")
sketch8.setExpression("Constraints[57]", "Params.sketch8_width3")
sketch8.setExpression("Constraints[58]", "Params.sketch8_width4")
sketch8.setExpression("Constraints[59]", "Params.sketch8_height")
pad8 = doc.addObject("PartDesign::Pad", "Pad007")
body8.addObject(pad8)
pad8.Profile = sketch8
pad8.setExpression("Length", "Params.pad8_length")
body9 = doc.addObject("PartDesign::Body", "Body008")

# Sketch on XZ plane
sketch9 = doc.addObject("Sketcher::SketchObject", "Sketch008")
body9.addObject(sketch9)
sketch9.AttachmentSupport = (doc.getObject("XZ_Plane008"), [""])
sketch9.MapMode = "FlatFace"
sketch9.addGeometry([
    Part.LineSegment(Vector(-153, -605, 0), Vector(-75, -605, 0)),  # 0
    Part.LineSegment(Vector(-75, -605, 0), Vector(-75, 0, 0)),  # 1
    Part.LineSegment(Vector(-75, 0, 0), Vector(-80, 5, 0)),  # 2
    Part.LineSegment(Vector(-80, 5, 0), Vector(-177, 5, 0)),  # 3
    Part.LineSegment(Vector(-177, 5, 0), Vector(-230, -48, 0)),  # 4
    Part.LineSegment(Vector(-230, -48, 0), Vector(-230, -451, 0)),  # 5
    Part.LineSegment(Vector(-230, -451, 0), Vector(-153, -605, 0)),  # 6
], False)
sketch9.addConstraint([
    Sketcher.Constraint("Coincident", 0, 2, 1, 1),
    Sketcher.Constraint("Coincident", 1, 2, 2, 1),
    Sketcher.Constraint("Coincident", 2, 2, 3, 1),
    Sketcher.Constraint("Coincident", 3, 2, 4, 1),
    Sketcher.Constraint("Coincident", 4, 2, 5, 1),
    Sketcher.Constraint("Coincident", 5, 2, 6, 1),
    Sketcher.Constraint("Coincident", 6, 2, 0, 1),
    Sketcher.Constraint("Horizontal", 0),
    Sketcher.Constraint("Vertical", 1),
    Sketcher.Constraint("Horizontal", 3),
    Sketcher.Constraint("Vertical", 5),
    Sketcher.Constraint("PointOnObject", 1, 2, -1),
    Sketcher.Constraint("Perpendicular", 2, 4),
    Sketcher.Constraint("DistanceY", 1, 1, 1, 2, 605.0),
    Sketcher.Constraint("Angle", 2, Q("135 deg")),
    Sketcher.Constraint("DistanceX", 0, 2, -1, 1, 75.0),
    Sketcher.Constraint("DistanceX", 2, 2, -1, 1, 80.0),
    Sketcher.Constraint("DistanceX", 4, 2, -1, 1, 230.0),
    Sketcher.Constraint("DistanceX", 0, 1, 0, 2, 78.09017),
    Sketcher.Constraint("Distance", 6, 171.975608),
    Sketcher.Constraint("DistanceX", 3, 2, 3, 1, 97.071068),
])
sketch9.setExpression("Constraints[13]", "Params.sketch9_height")
pad9 = doc.addObject("PartDesign::Pad", "Pad008")
body9.addObject(pad9)
pad9.Profile = sketch9
pad9.setExpression("Length", "Params.pad9_length")
body10 = doc.addObject("PartDesign::Body", "Body009")
doc.recompute()

mirroring = doc.addObject("Part::Mirroring", "Mirroring")
mirroring.Source = body9
mirroring.Base = Vector(0, 0, 0)
mirroring.Normal = Vector(1, 0, 0)
body10.BaseFeature = mirroring
doc.recompute()
mirroring.Visibility = False

doc.recompute()
